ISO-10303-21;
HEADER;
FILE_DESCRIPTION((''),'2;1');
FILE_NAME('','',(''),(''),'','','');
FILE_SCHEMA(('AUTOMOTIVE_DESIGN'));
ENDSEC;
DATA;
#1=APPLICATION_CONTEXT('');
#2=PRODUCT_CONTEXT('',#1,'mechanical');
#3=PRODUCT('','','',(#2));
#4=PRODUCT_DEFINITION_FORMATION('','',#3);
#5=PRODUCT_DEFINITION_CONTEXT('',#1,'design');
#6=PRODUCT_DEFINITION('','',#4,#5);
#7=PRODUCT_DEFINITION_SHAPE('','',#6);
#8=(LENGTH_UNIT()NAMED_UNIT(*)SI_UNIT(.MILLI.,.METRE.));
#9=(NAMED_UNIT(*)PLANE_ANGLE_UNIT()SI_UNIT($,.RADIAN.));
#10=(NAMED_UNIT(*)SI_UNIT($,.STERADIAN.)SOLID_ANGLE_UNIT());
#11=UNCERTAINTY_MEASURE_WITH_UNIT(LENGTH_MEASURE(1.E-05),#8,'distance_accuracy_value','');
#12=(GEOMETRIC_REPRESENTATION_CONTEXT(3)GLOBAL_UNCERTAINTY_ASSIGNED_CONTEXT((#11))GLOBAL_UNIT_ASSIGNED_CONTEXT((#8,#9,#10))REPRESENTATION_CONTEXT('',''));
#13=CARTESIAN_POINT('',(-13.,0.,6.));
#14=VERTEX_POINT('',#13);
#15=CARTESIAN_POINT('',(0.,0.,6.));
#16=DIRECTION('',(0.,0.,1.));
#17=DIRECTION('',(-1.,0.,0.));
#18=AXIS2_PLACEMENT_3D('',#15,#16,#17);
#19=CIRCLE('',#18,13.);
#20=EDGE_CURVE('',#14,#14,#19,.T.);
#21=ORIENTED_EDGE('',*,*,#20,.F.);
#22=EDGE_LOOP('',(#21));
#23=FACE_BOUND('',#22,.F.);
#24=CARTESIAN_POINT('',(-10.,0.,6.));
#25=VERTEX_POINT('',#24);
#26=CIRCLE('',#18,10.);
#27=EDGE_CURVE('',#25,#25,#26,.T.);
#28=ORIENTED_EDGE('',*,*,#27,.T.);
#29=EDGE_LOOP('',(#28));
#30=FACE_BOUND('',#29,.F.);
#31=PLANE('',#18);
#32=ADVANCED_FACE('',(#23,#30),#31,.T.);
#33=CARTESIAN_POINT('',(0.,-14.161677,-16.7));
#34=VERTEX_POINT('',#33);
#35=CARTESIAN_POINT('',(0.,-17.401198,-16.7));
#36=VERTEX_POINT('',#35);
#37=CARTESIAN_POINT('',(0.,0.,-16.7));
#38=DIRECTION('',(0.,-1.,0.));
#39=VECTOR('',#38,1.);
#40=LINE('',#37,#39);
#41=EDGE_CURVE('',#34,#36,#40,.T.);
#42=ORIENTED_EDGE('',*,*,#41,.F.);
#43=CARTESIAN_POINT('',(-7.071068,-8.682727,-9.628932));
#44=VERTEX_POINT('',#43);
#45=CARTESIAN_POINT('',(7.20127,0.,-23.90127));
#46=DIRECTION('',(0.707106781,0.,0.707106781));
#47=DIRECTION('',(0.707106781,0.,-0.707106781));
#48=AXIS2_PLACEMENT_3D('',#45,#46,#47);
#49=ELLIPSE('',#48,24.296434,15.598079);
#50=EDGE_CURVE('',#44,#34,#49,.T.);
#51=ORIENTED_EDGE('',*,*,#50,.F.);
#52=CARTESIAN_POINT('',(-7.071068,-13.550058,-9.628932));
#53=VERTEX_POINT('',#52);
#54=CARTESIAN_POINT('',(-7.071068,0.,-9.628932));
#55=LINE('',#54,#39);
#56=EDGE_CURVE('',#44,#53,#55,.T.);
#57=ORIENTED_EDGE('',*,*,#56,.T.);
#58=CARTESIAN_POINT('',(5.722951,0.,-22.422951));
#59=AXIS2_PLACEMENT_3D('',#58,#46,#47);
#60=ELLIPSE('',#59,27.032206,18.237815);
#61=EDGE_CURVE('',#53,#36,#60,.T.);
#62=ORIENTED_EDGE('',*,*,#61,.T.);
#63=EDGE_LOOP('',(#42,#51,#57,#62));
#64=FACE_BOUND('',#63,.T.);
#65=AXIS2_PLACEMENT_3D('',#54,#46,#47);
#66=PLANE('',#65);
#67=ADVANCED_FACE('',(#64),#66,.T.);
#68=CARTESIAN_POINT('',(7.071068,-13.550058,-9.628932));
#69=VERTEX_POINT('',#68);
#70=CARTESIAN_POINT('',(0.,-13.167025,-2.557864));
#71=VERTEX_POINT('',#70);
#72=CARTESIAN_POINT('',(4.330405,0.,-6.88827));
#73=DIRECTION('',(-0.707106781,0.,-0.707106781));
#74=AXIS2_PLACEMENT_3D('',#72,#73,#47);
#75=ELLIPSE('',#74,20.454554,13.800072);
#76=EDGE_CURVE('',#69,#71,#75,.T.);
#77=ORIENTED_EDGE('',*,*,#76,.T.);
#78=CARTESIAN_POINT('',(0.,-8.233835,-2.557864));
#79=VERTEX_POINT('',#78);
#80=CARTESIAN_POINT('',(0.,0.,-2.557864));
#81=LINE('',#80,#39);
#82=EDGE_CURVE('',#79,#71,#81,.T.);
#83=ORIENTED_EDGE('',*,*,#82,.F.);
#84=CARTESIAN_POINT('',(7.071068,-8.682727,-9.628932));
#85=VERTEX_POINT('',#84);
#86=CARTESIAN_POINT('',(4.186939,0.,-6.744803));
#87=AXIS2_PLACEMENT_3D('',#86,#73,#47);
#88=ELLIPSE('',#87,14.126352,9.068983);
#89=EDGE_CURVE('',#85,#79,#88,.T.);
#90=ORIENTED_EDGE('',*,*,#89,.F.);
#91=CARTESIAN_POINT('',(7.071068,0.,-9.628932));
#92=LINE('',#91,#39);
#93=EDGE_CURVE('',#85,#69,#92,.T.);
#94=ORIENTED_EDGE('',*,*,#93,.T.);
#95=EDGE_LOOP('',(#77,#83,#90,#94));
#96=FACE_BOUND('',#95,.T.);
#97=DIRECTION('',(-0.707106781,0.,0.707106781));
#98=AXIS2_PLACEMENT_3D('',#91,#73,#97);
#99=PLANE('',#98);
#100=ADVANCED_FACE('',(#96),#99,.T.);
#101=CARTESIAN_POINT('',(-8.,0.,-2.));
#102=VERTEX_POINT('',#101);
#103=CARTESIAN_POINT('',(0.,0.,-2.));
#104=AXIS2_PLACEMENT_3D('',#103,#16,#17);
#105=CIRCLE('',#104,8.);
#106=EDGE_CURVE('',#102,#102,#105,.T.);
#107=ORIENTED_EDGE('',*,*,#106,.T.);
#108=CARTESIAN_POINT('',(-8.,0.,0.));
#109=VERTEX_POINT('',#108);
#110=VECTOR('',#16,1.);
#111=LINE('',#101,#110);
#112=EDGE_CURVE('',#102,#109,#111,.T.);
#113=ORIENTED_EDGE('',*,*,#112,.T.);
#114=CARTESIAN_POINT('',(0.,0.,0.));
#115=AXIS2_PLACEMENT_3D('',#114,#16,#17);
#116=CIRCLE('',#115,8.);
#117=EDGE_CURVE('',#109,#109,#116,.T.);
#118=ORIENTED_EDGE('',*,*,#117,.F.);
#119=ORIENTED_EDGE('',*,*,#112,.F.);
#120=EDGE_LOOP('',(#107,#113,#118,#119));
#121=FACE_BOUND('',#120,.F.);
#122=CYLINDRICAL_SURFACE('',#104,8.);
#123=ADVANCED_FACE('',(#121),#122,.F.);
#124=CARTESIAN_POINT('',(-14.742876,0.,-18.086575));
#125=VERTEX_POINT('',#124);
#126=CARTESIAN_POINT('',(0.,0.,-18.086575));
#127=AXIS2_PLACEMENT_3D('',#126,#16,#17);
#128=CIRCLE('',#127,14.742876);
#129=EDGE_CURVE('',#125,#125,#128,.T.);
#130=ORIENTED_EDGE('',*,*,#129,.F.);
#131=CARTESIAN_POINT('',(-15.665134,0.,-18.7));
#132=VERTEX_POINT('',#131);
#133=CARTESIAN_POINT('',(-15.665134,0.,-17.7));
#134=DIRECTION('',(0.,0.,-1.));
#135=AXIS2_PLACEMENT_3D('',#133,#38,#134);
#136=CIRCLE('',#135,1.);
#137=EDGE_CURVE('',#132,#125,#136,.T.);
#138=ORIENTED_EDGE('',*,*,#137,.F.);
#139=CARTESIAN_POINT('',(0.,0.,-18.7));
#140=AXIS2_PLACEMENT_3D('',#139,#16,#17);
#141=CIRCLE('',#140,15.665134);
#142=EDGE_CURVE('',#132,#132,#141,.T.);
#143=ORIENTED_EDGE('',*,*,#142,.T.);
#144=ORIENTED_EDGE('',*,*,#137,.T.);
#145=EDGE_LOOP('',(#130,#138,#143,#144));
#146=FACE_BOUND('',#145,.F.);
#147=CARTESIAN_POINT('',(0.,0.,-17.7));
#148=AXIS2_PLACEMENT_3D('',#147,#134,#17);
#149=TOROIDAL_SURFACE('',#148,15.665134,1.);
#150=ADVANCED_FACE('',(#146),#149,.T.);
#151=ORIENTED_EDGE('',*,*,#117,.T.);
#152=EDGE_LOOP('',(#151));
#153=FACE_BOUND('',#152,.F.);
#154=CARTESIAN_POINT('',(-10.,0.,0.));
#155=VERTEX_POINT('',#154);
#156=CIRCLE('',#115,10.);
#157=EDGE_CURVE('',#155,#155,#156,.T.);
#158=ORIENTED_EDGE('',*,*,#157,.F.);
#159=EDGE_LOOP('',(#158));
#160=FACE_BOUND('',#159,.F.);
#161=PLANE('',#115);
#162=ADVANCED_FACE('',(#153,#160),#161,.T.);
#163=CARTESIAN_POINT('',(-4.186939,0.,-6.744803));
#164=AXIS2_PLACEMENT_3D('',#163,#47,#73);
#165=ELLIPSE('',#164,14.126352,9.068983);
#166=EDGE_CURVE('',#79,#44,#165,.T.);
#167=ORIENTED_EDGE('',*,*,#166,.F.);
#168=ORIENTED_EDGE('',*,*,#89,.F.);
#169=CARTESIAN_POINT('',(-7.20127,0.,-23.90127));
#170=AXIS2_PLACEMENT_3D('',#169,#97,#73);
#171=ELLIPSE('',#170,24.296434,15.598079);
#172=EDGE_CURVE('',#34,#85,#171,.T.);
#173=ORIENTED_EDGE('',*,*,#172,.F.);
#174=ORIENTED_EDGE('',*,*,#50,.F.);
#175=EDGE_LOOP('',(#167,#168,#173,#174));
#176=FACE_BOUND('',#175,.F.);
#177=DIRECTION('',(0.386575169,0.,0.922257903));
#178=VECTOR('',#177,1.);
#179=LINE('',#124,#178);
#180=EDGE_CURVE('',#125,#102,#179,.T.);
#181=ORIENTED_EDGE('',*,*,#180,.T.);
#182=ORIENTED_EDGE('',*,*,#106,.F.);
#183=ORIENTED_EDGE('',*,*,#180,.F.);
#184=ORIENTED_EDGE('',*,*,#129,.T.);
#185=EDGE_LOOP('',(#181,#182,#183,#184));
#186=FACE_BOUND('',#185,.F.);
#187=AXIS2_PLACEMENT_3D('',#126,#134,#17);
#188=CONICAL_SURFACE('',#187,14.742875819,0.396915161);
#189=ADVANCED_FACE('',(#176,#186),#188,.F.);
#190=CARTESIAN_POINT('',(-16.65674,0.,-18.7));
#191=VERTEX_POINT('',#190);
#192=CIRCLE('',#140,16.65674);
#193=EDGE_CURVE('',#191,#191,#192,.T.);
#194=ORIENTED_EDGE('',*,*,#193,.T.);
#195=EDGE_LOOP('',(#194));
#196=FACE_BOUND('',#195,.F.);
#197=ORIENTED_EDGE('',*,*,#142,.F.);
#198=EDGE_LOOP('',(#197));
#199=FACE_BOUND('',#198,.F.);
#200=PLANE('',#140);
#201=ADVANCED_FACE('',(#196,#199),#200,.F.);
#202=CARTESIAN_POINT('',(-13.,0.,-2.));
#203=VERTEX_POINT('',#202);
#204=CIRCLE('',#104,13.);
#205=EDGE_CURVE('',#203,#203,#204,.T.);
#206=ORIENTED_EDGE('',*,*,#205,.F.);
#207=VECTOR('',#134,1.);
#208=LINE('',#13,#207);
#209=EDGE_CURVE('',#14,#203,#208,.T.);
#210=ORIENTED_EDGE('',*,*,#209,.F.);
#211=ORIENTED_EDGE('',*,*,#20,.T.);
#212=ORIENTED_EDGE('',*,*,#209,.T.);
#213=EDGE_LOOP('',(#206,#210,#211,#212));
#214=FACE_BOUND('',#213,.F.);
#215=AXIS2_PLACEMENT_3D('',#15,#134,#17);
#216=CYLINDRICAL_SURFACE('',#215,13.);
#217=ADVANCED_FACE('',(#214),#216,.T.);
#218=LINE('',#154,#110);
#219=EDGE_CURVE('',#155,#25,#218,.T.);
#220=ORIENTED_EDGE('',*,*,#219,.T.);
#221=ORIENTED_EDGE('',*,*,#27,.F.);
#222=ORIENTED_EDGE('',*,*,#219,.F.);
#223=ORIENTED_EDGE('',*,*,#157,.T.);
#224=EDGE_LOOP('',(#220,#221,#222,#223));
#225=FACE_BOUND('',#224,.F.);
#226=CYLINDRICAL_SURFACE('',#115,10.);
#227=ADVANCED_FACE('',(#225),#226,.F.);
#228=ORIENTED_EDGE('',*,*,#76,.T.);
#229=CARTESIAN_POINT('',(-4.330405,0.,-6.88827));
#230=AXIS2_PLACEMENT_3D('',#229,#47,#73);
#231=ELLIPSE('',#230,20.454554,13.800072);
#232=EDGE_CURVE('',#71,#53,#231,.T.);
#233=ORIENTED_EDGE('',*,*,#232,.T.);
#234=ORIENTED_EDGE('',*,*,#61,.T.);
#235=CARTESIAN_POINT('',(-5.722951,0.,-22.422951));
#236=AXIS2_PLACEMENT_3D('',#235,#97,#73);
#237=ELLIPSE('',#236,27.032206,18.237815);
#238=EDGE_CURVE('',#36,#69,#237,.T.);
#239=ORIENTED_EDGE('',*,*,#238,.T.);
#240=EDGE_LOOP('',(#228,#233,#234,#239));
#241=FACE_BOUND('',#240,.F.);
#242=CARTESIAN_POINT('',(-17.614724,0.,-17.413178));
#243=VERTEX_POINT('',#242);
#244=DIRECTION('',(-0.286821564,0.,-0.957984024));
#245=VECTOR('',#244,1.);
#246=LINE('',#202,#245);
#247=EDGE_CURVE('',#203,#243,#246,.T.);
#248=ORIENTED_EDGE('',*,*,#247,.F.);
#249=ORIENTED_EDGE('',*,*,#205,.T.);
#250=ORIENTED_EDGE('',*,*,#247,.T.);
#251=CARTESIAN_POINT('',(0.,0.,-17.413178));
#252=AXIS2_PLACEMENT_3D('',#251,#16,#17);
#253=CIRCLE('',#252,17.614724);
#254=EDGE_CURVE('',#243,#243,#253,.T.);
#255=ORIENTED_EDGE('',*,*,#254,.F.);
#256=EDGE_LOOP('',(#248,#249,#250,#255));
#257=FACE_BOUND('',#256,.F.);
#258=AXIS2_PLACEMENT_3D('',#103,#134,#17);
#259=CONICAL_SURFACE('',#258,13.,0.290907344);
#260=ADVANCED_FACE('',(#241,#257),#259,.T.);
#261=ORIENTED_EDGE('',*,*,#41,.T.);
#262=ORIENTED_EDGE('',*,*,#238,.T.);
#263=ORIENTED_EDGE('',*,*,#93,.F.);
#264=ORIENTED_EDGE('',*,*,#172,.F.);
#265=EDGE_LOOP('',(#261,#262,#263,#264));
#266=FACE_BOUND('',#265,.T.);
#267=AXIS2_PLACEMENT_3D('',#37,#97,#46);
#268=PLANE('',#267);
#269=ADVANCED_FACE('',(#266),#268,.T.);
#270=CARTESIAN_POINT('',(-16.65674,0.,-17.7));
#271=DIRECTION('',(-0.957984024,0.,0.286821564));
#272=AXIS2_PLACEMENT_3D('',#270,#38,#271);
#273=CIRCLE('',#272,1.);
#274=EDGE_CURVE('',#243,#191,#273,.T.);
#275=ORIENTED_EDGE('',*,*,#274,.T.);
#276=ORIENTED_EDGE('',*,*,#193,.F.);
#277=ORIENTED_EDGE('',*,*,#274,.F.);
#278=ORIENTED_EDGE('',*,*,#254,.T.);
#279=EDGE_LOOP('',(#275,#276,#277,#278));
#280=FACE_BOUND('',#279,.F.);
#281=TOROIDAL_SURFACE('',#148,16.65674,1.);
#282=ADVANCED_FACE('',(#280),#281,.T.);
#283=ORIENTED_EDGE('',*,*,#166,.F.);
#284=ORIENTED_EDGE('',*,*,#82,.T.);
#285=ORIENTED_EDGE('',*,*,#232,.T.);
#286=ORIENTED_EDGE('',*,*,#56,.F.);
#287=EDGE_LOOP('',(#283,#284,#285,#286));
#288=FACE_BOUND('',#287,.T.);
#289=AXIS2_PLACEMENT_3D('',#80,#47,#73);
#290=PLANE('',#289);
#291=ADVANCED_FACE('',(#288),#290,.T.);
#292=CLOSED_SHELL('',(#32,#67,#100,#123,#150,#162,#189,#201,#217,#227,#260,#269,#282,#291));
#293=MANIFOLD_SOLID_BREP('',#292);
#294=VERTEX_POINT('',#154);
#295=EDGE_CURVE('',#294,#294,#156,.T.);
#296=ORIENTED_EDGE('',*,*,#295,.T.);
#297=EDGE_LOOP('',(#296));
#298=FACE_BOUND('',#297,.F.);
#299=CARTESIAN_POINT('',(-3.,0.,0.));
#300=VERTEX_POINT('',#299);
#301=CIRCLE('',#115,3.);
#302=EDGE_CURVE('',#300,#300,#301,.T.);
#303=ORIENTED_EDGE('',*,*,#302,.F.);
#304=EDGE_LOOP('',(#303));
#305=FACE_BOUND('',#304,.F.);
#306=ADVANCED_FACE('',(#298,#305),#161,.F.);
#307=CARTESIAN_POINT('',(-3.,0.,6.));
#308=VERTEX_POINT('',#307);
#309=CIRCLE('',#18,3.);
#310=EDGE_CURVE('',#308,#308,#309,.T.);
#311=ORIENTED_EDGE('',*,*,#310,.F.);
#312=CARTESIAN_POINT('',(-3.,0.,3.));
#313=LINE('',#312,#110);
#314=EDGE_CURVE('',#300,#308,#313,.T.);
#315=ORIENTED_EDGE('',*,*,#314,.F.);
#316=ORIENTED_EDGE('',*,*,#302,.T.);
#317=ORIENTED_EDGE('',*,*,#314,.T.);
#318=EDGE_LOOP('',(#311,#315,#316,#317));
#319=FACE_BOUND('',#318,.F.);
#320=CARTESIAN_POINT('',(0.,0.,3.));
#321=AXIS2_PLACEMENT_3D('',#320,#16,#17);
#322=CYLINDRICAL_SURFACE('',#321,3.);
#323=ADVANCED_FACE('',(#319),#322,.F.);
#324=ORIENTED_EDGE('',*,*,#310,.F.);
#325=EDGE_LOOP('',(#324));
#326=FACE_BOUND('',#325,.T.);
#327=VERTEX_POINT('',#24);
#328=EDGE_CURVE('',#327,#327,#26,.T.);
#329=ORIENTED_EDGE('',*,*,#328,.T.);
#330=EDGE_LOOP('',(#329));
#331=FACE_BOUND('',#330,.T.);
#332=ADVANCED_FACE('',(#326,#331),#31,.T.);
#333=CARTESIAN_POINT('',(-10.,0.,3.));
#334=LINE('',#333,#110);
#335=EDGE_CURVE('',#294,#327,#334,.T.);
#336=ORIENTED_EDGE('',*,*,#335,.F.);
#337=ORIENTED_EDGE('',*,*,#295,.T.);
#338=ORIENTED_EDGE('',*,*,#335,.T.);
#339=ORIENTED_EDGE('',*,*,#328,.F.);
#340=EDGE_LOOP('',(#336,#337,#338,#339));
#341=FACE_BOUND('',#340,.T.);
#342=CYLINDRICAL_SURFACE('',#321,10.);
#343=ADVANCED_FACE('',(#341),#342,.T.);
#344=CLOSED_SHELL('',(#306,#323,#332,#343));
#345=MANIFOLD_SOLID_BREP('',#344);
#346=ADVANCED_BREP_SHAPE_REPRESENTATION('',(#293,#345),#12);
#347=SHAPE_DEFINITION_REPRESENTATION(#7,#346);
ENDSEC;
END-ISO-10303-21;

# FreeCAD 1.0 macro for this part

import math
import FreeCAD as App
import Part
import Sketcher

V = App.Vector

doc = App.newDocument("Part")
body = doc.addObject("PartDesign::Body", "Body")

sketch1 = body.newObject("Sketcher::SketchObject", "Sketch")
sketch1.AttachmentSupport = (doc.getObject("XZ_Plane"), [""])
sketch1.MapMode = "FlatFace"
sketch1.addGeometry(Part.LineSegment(V(-10, 6, 0), V(-10, 0, 0)), False)
sketch1.addGeometry(Part.LineSegment(V(-10, 0, 0), V(-3, 0, 0)), False)
sketch1.addGeometry(Part.LineSegment(V(-3, 0, 0), V(-3, 6, 0)), False)
sketch1.addGeometry(Part.LineSegment(V(-3, 6, 0), V(-10, 6, 0)), False)
sketch1.addConstraint(Sketcher.Constraint("Coincident", 0, 2, 1, 1))
sketch1.addConstraint(Sketcher.Constraint("Coincident", 1, 2, 2, 1))
sketch1.addConstraint(Sketcher.Constraint("Coincident", 2, 2, 3, 1))
sketch1.addConstraint(Sketcher.Constraint("Coincident", 3, 2, 0, 1))
sketch1.addConstraint(Sketcher.Constraint("Vertical", 0))
sketch1.addConstraint(Sketcher.Constraint("Horizontal", 1))
sketch1.addConstraint(Sketcher.Constraint("Vertical", 2))
sketch1.addConstraint(Sketcher.Constraint("Horizontal", 3))
sketch1.addConstraint(Sketcher.Constraint("PointOnObject", 0, 2, -1))
sketch1.addConstraint(Sketcher.Constraint("DistanceX", 1, 1, 1, 2, 7.0))
sketch1.addConstraint(Sketcher.Constraint("DistanceY", 0, 2, 0, 1, 6.0))
sketch1.addConstraint(Sketcher.Constraint("DistanceX", 0, 2, -1, 1, 10.0))
revolution = body.newObject("PartDesign::Revolution", "Revolution")
revolution.Profile = sketch1
revolution.ReferenceAxis = (sketch1, ["V_Axis"])
revolution.Angle = 360

sketch2 = body.newObject("Sketcher::SketchObject", "Sketch001")
sketch2.AttachmentSupport = (doc.getObject("XY_Plane"), [""])
sketch2.MapMode = "FlatFace"
sketch2.AttachmentOffset = App.Placement(V(0, 0, 6), App.Rotation())
sketch2.addGeometry(Part.Circle(V(0, 0, 0), V(0, 0, 1), 6), False)
sketch2.addConstraint(Sketcher.Constraint("Coincident", 0, 3, -1, 1))
sketch2.addConstraint(Sketcher.Constraint("Diameter", 0, 12.5))
pocket1 = body.newObject("PartDesign::Pocket", "Pocket")
pocket1.Profile = sketch2
pocket1.Length = 30
pocket1.Reversed = True
body2 = doc.addObject("PartDesign::Body", "Body001")

sketch3 = body2.newObject("Sketcher::SketchObject", "Sketch002")
sketch3.AttachmentSupport = (doc.getObject("XZ_Plane001"), [""])
sketch3.MapMode = "FlatFace"
sketch3.addGeometry(Part.LineSegment(V(-8, 0, 0), V(-10, 0, 0)), False)
sketch3.addGeometry(Part.LineSegment(V(-10, 0, 0), V(-10, 6, 0)), False)
sketch3.addGeometry(Part.LineSegment(V(-10, 6, 0), V(-13, 6, 0)), False)
sketch3.addGeometry(Part.LineSegment(V(-13, 6, 0), V(-13, -2, 0)), False)
sketch3.addGeometry(Part.LineSegment(V(-13, -2, 0), V(-17.6, -17.4, 0)), False)
sketch3.addGeometry(Part.ArcOfCircle(Part.Circle(V(-16.7, -17.7, 0), V(0, 0, 1), 1), math.radians(163), math.radians(270)), False)
sketch3.addGeometry(Part.LineSegment(V(-16.7, -18.7, 0), V(-15.7, -18.7, 0)), False)
sketch3.addGeometry(Part.ArcOfCircle(Part.Circle(V(-15.7, -17.7, 0), V(0, 0, 1), 1), math.radians(-90), math.radians(-23)), False)
sketch3.addGeometry(Part.LineSegment(V(-14.7, -18.1, 0), V(-8, -2, 0)), False)
sketch3.addGeometry(Part.LineSegment(V(-8, -2, 0), V(-8, 0, 0)), False)
sketch3.addConstraint(Sketcher.Constraint("Coincident", 0, 2, 1, 1))
sketch3.addConstraint(Sketcher.Constraint("Coincident", 1, 2, 2, 1))
sketch3.addConstraint(Sketcher.Constraint("Coincident", 2, 2, 3, 1))
sketch3.addConstraint(Sketcher.Constraint("Coincident", 3, 2, 4, 1))
sketch3.addConstraint(Sketcher.Constraint("Tangent", 4, 2, 5, 1))
sketch3.addConstraint(Sketcher.Constraint("Tangent", 5, 2, 6, 1))
sketch3.addConstraint(Sketcher.Constraint("Tangent", 6, 2, 7, 1))
sketch3.addConstraint(Sketcher.Constraint("Tangent", 7, 2, 8, 1))
sketch3.addConstraint(Sketcher.Constraint("Coincident", 8, 2, 9, 1))
sketch3.addConstraint(Sketcher.Constraint("Coincident", 9, 2, 0, 1))
sketch3.addConstraint(Sketcher.Constraint("Horizontal", 0))
sketch3.addConstraint(Sketcher.Constraint("Vertical", 1))
sketch3.addConstraint(Sketcher.Constraint("Horizontal", 2))
sketch3.addConstraint(Sketcher.Constraint("Vertical", 3))
sketch3.addConstraint(Sketcher.Constraint("Horizontal", 6))
sketch3.addConstraint(Sketcher.Constraint("Vertical", 9))
sketch3.addConstraint(Sketcher.Constraint("Equal", 5, 7))
sketch3.addConstraint(Sketcher.Constraint("PointOnObject", 0, 2, -1))
sketch3.addConstraint(Sketcher.Constraint("Horizontal", 3, 2, 8, 2))
sketch3.addConstraint(Sketcher.Constraint("Equal", 0, 9))
sketch3.addConstraint(Sketcher.Constraint("Radius", 5, 1.0))
sketch3.addConstraint(Sketcher.Constraint("DistanceX", 0, 2, 0, 1, 2.0))
sketch3.addConstraint(Sketcher.Constraint("DistanceX", 2, 2, 2, 1, 3.0))
sketch3.addConstraint(Sketcher.Constraint("DistanceY", 1, 1, 1, 2, 6.0))
sketch3.addConstraint(Sketcher.Constraint("DistanceX", 0, 2, -1, 1, 10.0))
sketch3.addConstraint(Sketcher.Constraint("DistanceY", 5, 3, -1, 1, 17.7))
sketch3.addConstraint(Sketcher.Constraint("Distance", 8, 17.442599))
sketch3.addConstraint(Sketcher.Constraint("Distance", 4, 16.089181))
revolution2 = body2.newObject("PartDesign::Revolution", "Revolution001")
revolution2.Profile = sketch3
revolution2.ReferenceAxis = (sketch3, ["V_Axis"])
revolution2.Angle = 360

sketch4 = body2.newObject("Sketcher::SketchObject", "Sketch003")
sketch4.AttachmentSupport = (doc.getObject("XZ_Plane001"), [""])
sketch4.MapMode = "FlatFace"
sketch4.addGeometry(Part.LineSegment(V(7, -10, 0), V(0, -3, 0)), False)
sketch4.addGeometry(Part.LineSegment(V(0, -3, 0), V(-7, -10, 0)), False)
sketch4.addGeometry(Part.LineSegment(V(-7, -10, 0), V(0, -17, 0)), False)
sketch4.addGeometry(Part.LineSegment(V(0, -17, 0), V(7, -10, 0)), False)
sketch4.addConstraint(Sketcher.Constraint("Coincident", 0, 2, 1, 1))
sketch4.addConstraint(Sketcher.Constraint("Coincident", 1, 2, 2, 1))
sketch4.addConstraint(Sketcher.Constraint("Coincident", 2, 2, 3, 1))
sketch4.addConstraint(Sketcher.Constraint("Coincident", 3, 2, 0, 1))
sketch4.addConstraint(Sketcher.Constraint("Symmetric", 1, 2, 3, 2, -2))
sketch4.addConstraint(Sketcher.Constraint("PointOnObject", 0, 2, -2))
sketch4.addConstraint(Sketcher.Constraint("PointOnObject", 2, 2, -2))
sketch4.addConstraint(Sketcher.Constraint("Perpendicular", 0, 1))
sketch4.addConstraint(Sketcher.Constraint("Perpendicular", 1, 2))
sketch4.addConstraint(Sketcher.Constraint("Distance", 0, 10.0))
sketch4.addConstraint(Sketcher.Constraint("DistanceY", 2, 2, -1, 1, 16.7))
pocket2 = body2.newObject("PartDesign::Pocket", "Pocket001")
pocket2.Profile = sketch4
pocket2.Length = 80
pocket2.Reversed = True

doc.recompute()
